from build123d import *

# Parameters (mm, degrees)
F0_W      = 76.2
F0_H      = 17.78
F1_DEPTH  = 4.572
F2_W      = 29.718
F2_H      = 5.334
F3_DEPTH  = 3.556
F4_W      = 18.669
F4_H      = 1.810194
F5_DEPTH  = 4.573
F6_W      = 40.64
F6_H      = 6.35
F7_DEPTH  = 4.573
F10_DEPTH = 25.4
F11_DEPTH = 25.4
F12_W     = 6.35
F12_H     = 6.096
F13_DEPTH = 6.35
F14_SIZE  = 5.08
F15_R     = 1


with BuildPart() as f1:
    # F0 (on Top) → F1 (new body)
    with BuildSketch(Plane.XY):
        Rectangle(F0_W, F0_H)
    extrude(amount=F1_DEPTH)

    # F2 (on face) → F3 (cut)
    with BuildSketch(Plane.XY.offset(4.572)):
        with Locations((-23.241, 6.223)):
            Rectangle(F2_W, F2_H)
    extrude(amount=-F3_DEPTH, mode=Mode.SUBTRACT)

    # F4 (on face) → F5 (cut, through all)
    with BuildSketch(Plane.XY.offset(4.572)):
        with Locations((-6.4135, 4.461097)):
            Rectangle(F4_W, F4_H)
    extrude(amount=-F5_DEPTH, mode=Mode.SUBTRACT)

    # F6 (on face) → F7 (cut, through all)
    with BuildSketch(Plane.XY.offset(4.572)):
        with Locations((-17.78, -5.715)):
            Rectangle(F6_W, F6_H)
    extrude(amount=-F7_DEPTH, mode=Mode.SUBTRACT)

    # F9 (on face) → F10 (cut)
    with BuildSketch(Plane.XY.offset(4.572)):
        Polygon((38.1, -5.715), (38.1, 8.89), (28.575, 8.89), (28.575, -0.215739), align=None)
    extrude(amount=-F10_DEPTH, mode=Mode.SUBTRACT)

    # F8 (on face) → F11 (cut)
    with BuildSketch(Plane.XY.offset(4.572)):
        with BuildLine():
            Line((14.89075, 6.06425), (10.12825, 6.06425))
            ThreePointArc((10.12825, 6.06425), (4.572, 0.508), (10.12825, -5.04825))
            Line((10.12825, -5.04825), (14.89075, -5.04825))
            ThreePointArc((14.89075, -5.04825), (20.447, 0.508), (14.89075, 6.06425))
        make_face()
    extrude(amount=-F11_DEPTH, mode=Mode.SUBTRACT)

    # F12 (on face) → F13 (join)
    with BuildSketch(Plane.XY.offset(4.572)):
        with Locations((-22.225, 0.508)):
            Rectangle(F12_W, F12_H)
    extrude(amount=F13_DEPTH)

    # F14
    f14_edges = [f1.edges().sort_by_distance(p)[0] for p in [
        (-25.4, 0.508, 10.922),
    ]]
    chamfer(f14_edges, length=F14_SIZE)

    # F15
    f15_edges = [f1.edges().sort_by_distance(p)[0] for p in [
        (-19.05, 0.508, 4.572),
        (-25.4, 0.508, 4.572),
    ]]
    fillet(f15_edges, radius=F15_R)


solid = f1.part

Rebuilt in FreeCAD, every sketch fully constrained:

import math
import FreeCAD as App
import Part
import Sketcher

V = App.Vector
Q = App.Units.Quantity


def edges_at(feature, points):
    """Names of the edges that pass closest to the given points."""
    edges = feature.Shape.Edges
    near = lambda p: min(range(len(edges)), key=lambda i: edges[i].distToShape(Part.Vertex(*p))[0])
    return sorted({f"Edge{near(p) + 1}" for p in points})


def add_polygon(sketch, points):
    """Adds a closed chain of lines whose ends are joined by coincident constraints."""
    first, n = sketch.GeometryCount, len(points)
    for a, b in zip(points, points[1:] + points[:1]):
        sketch.addGeometry(Part.LineSegment(App.Vector(*a, 0), App.Vector(*b, 0)), False)
    for i in range(n):
        sketch.addConstraint(Sketcher.Constraint("Coincident", first + i, 2, first + (i + 1) % n, 1))

doc = App.newDocument("Part")
body = doc.addObject("PartDesign::Body", "Body")

sketch1 = body.newObject("Sketcher::SketchObject", "Sketch")
sketch1.AttachmentSupport = (doc.getObject("XY_Plane"), [""])
sketch1.MapMode = "FlatFace"
add_polygon(sketch1, [(-38, 9), (-38, -9), (38, -9), (38, 9)])
sketch1.addConstraint([
    Sketcher.Constraint("Vertical", 0),
    Sketcher.Constraint("Horizontal", 1),
    Sketcher.Constraint("Vertical", 2),
    Sketcher.Constraint("Horizontal", 3),
    Sketcher.Constraint("Symmetric", 0, 2, 2, 2, -1, 1),
    Sketcher.Constraint("DistanceX", 1, 1, 1, 2, Q("3 in")),
    Sketcher.Constraint("DistanceY", 0, 2, 0, 1, Q("0.7 in")),
])
pad1 = body.newObject("PartDesign::Pad", "Pad")
pad1.Profile = sketch1
pad1.Length = Q("0.18 in")

sketch2 = body.newObject("Sketcher::SketchObject", "Sketch001")
sketch2.AttachmentSupport = (doc.getObject("XY_Plane"), [""])
sketch2.MapMode = "FlatFace"
sketch2.AttachmentOffset = App.Placement(V(0, 0, 0.18 * 25.4), App.Rotation())
add_polygon(sketch2, [(-38, 9), (-38, 4), (-8, 4), (-8, 9)])
sketch2.addConstraint([
    Sketcher.Constraint("Vertical", 0),
    Sketcher.Constraint("Horizontal", 1),
    Sketcher.Constraint("Vertical", 2),
    Sketcher.Constraint("Horizontal", 3),
    Sketcher.Constraint("DistanceX", 1, 1, 1, 2, Q("1.17 in")),
    Sketcher.Constraint("DistanceY", 0, 2, 0, 1, Q("0.21 in")),
    Sketcher.Constraint("DistanceX", 0, 2, -1, 1, Q("1.5 in")),
    Sketcher.Constraint("DistanceY", -1, 1, 0, 2, Q("0.14 in")),
])
pocket1 = body.newObject("PartDesign::Pocket", "Pocket")
pocket1.Profile = sketch2
pocket1.Length = Q("0.14 in")

sketch3 = body.newObject("Sketcher::SketchObject", "Sketch002")
sketch3.AttachmentSupport = (doc.getObject("XY_Plane"), [""])
sketch3.MapMode = "FlatFace"
sketch3.AttachmentOffset = App.Placement(V(0, 0, 0.18 * 25.4), App.Rotation())
add_polygon(sketch3, [(-15.7, 5.4), (-15.7, 3.6), (2.9, 3.6), (2.9, 5.4)])
sketch3.addConstraint([
    Sketcher.Constraint("Vertical", 0),
    Sketcher.Constraint("Horizontal", 1),
    Sketcher.Constraint("Vertical", 2),
    Sketcher.Constraint("Horizontal", 3),
    Sketcher.Constraint("DistanceX", 1, 1, 1, 2, Q("0.735 in")),
    Sketcher.Constraint("DistanceX", 0, 2, -1, 1, Q("0.62 in")),
    Sketcher.Constraint("DistanceY", -1, 1, 0, 2, Q("0.14 in")),
    Sketcher.Constraint("DistanceY", 0, 2, 0, 1, Q("1.810194 mm")),
])
pocket2 = body.newObject("PartDesign::Pocket", "Pocket001")
pocket2.Profile = sketch3
pocket2.Type = "ThroughAll"

sketch4 = body.newObject("Sketcher::SketchObject", "Sketch003")
sketch4.AttachmentSupport = (doc.getObject("XY_Plane"), [""])
sketch4.MapMode = "FlatFace"
sketch4.AttachmentOffset = App.Placement(V(0, 0, 0.18 * 25.4), App.Rotation())
add_polygon(sketch4, [(-38, -3), (-38, -9), (3, -9), (3, -3)])
sketch4.addConstraint([
    Sketcher.Constraint("Vertical", 0),
    Sketcher.Constraint("Horizontal", 1),
    Sketcher.Constraint("Vertical", 2),
    Sketcher.Constraint("Horizontal", 3),
    Sketcher.Constraint("DistanceX", 1, 1, 1, 2, Q("1.6 in")),
    Sketcher.Constraint("DistanceY", 0, 2, 0, 1, Q("0.25 in")),
    Sketcher.Constraint("DistanceX", 0, 2, -1, 1, Q("1.5 in")),
    Sketcher.Constraint("DistanceY", 2, 2, -1, 1, Q("0.1 in")),
])
pocket3 = body.newObject("PartDesign::Pocket", "Pocket002")
pocket3.Profile = sketch4
pocket3.Type = "ThroughAll"

sketch5 = body.newObject("Sketcher::SketchObject", "Sketch004")
sketch5.AttachmentSupport = (doc.getObject("XY_Plane"), [""])
sketch5.MapMode = "FlatFace"
sketch5.AttachmentOffset = App.Placement(V(0, 0, 0.18 * 25.4), App.Rotation())
add_polygon(sketch5, [(38, -6), (38, 9), (29, 9), (29, 0)])
sketch5.addConstraint([
    Sketcher.Constraint("Vertical", 0),
    Sketcher.Constraint("Horizontal", 1),
    Sketcher.Constraint("Vertical", 2),
    Sketcher.Constraint("Angle", 3, Q("-29.999999 deg")),
    Sketcher.Constraint("DistanceX", -1, 1, 0, 2, Q("1.5 in")),
    Sketcher.Constraint("DistanceX", 1, 2, 1, 1, Q("0.375 in")),
    Sketcher.Constraint("DistanceY", 0, 1, 0, 2, Q("0.575 in")),
    Sketcher.Constraint("DistanceY", -1, 1, 0, 2, Q("0.35 in")),
])
pocket4 = body.newObject("PartDesign::Pocket", "Pocket003")
pocket4.Profile = sketch5
pocket4.Length = Q("1 in")

sketch6 = body.newObject("Sketcher::SketchObject", "Sketch005")
sketch6.AttachmentSupport = (doc.getObject("XY_Plane"), [""])
sketch6.MapMode = "FlatFace"
sketch6.AttachmentOffset = App.Placement(V(0, 0, 0.18 * 25.4), App.Rotation())
sketch6.addGeometry([
    Part.LineSegment(V(14.9, 6.1, 0), V(10.1, 6.1, 0)),
    Part.ArcOfCircle(Part.Circle(V(10.1, 0.5, 0), V(0, 0, 1), 5.6), math.radians(90), math.radians(270)),
    Part.LineSegment(V(10.1, -5, 0), V(14.9, -5, 0)),
    Part.ArcOfCircle(Part.Circle(V(14.9, 0.5, 0), V(0, 0, 1), 5.6), math.radians(-90), math.radians(90)),
], False)
sketch6.addConstraint([
    Sketcher.Constraint("Tangent", 0, 2, 1, 1),
    Sketcher.Constraint("Tangent", 1, 2, 2, 1),
    Sketcher.Constraint("Tangent", 2, 2, 3, 1),
    Sketcher.Constraint("Tangent", 3, 2, 0, 1),
    Sketcher.Constraint("Horizontal", 0),
    Sketcher.Constraint("Horizontal", 2),
    Sketcher.Constraint("Radius", 1, Q("0.21875 in")),
    Sketcher.Constraint("DistanceX", 0, 2, 0, 1, Q("0.1875 in")),
    Sketcher.Constraint("DistanceY", -1, 1, 1, 3, Q("0.02 in")),
    Sketcher.Constraint("DistanceX", -1, 1, 1, 3, Q("10.12825 mm")),
])
pocket5 = body.newObject("PartDesign::Pocket", "Pocket004")
pocket5.Profile = sketch6
pocket5.Length = Q("1 in")

sketch7 = body.newObject("Sketcher::SketchObject", "Sketch006")
sketch7.AttachmentSupport = (doc.getObject("XY_Plane"), [""])
sketch7.MapMode = "FlatFace"
sketch7.AttachmentOffset = App.Placement(V(0, 0, 0.18 * 25.4), App.Rotation())
add_polygon(sketch7, [(-25, 4), (-25, -3), (-19, -3), (-19, 4)])
sketch7.addConstraint([
    Sketcher.Constraint("Vertical", 0),
    Sketcher.Constraint("Horizontal", 1),
    Sketcher.Constraint("Vertical", 2),
    Sketcher.Constraint("Horizontal", 3),
    Sketcher.Constraint("DistanceX", 0, 2, -1, 1, Q("1 in")),
    Sketcher.Constraint("DistanceX", 1, 1, 1, 2, Q("0.25 in")),
    Sketcher.Constraint("DistanceY", 0, 2, 0, 1, Q("0.24 in")),
    Sketcher.Constraint("DistanceY", 0, 2, -1, 1, Q("0.1 in")),
])
pad2 = body.newObject("PartDesign::Pad", "Pad001")
pad2.Profile = sketch7
pad2.Length = Q("0.25 in")
doc.recompute()

chamfer = body.newObject("PartDesign::Chamfer", "Chamfer")
chamfer.Base = (pad2, edges_at(pad2, [(-25.4, 0.508, 10.922)]))
chamfer.Size = Q("0.2 in")
doc.recompute()

fillet = body.newObject("PartDesign::Fillet", "Fillet")
fillet.Base = (chamfer, edges_at(chamfer, [(-19.05, 0.508, 4.572), (-25.4, 0.508, 4.572)]))
fillet.Radius = 1

doc.recompute()
